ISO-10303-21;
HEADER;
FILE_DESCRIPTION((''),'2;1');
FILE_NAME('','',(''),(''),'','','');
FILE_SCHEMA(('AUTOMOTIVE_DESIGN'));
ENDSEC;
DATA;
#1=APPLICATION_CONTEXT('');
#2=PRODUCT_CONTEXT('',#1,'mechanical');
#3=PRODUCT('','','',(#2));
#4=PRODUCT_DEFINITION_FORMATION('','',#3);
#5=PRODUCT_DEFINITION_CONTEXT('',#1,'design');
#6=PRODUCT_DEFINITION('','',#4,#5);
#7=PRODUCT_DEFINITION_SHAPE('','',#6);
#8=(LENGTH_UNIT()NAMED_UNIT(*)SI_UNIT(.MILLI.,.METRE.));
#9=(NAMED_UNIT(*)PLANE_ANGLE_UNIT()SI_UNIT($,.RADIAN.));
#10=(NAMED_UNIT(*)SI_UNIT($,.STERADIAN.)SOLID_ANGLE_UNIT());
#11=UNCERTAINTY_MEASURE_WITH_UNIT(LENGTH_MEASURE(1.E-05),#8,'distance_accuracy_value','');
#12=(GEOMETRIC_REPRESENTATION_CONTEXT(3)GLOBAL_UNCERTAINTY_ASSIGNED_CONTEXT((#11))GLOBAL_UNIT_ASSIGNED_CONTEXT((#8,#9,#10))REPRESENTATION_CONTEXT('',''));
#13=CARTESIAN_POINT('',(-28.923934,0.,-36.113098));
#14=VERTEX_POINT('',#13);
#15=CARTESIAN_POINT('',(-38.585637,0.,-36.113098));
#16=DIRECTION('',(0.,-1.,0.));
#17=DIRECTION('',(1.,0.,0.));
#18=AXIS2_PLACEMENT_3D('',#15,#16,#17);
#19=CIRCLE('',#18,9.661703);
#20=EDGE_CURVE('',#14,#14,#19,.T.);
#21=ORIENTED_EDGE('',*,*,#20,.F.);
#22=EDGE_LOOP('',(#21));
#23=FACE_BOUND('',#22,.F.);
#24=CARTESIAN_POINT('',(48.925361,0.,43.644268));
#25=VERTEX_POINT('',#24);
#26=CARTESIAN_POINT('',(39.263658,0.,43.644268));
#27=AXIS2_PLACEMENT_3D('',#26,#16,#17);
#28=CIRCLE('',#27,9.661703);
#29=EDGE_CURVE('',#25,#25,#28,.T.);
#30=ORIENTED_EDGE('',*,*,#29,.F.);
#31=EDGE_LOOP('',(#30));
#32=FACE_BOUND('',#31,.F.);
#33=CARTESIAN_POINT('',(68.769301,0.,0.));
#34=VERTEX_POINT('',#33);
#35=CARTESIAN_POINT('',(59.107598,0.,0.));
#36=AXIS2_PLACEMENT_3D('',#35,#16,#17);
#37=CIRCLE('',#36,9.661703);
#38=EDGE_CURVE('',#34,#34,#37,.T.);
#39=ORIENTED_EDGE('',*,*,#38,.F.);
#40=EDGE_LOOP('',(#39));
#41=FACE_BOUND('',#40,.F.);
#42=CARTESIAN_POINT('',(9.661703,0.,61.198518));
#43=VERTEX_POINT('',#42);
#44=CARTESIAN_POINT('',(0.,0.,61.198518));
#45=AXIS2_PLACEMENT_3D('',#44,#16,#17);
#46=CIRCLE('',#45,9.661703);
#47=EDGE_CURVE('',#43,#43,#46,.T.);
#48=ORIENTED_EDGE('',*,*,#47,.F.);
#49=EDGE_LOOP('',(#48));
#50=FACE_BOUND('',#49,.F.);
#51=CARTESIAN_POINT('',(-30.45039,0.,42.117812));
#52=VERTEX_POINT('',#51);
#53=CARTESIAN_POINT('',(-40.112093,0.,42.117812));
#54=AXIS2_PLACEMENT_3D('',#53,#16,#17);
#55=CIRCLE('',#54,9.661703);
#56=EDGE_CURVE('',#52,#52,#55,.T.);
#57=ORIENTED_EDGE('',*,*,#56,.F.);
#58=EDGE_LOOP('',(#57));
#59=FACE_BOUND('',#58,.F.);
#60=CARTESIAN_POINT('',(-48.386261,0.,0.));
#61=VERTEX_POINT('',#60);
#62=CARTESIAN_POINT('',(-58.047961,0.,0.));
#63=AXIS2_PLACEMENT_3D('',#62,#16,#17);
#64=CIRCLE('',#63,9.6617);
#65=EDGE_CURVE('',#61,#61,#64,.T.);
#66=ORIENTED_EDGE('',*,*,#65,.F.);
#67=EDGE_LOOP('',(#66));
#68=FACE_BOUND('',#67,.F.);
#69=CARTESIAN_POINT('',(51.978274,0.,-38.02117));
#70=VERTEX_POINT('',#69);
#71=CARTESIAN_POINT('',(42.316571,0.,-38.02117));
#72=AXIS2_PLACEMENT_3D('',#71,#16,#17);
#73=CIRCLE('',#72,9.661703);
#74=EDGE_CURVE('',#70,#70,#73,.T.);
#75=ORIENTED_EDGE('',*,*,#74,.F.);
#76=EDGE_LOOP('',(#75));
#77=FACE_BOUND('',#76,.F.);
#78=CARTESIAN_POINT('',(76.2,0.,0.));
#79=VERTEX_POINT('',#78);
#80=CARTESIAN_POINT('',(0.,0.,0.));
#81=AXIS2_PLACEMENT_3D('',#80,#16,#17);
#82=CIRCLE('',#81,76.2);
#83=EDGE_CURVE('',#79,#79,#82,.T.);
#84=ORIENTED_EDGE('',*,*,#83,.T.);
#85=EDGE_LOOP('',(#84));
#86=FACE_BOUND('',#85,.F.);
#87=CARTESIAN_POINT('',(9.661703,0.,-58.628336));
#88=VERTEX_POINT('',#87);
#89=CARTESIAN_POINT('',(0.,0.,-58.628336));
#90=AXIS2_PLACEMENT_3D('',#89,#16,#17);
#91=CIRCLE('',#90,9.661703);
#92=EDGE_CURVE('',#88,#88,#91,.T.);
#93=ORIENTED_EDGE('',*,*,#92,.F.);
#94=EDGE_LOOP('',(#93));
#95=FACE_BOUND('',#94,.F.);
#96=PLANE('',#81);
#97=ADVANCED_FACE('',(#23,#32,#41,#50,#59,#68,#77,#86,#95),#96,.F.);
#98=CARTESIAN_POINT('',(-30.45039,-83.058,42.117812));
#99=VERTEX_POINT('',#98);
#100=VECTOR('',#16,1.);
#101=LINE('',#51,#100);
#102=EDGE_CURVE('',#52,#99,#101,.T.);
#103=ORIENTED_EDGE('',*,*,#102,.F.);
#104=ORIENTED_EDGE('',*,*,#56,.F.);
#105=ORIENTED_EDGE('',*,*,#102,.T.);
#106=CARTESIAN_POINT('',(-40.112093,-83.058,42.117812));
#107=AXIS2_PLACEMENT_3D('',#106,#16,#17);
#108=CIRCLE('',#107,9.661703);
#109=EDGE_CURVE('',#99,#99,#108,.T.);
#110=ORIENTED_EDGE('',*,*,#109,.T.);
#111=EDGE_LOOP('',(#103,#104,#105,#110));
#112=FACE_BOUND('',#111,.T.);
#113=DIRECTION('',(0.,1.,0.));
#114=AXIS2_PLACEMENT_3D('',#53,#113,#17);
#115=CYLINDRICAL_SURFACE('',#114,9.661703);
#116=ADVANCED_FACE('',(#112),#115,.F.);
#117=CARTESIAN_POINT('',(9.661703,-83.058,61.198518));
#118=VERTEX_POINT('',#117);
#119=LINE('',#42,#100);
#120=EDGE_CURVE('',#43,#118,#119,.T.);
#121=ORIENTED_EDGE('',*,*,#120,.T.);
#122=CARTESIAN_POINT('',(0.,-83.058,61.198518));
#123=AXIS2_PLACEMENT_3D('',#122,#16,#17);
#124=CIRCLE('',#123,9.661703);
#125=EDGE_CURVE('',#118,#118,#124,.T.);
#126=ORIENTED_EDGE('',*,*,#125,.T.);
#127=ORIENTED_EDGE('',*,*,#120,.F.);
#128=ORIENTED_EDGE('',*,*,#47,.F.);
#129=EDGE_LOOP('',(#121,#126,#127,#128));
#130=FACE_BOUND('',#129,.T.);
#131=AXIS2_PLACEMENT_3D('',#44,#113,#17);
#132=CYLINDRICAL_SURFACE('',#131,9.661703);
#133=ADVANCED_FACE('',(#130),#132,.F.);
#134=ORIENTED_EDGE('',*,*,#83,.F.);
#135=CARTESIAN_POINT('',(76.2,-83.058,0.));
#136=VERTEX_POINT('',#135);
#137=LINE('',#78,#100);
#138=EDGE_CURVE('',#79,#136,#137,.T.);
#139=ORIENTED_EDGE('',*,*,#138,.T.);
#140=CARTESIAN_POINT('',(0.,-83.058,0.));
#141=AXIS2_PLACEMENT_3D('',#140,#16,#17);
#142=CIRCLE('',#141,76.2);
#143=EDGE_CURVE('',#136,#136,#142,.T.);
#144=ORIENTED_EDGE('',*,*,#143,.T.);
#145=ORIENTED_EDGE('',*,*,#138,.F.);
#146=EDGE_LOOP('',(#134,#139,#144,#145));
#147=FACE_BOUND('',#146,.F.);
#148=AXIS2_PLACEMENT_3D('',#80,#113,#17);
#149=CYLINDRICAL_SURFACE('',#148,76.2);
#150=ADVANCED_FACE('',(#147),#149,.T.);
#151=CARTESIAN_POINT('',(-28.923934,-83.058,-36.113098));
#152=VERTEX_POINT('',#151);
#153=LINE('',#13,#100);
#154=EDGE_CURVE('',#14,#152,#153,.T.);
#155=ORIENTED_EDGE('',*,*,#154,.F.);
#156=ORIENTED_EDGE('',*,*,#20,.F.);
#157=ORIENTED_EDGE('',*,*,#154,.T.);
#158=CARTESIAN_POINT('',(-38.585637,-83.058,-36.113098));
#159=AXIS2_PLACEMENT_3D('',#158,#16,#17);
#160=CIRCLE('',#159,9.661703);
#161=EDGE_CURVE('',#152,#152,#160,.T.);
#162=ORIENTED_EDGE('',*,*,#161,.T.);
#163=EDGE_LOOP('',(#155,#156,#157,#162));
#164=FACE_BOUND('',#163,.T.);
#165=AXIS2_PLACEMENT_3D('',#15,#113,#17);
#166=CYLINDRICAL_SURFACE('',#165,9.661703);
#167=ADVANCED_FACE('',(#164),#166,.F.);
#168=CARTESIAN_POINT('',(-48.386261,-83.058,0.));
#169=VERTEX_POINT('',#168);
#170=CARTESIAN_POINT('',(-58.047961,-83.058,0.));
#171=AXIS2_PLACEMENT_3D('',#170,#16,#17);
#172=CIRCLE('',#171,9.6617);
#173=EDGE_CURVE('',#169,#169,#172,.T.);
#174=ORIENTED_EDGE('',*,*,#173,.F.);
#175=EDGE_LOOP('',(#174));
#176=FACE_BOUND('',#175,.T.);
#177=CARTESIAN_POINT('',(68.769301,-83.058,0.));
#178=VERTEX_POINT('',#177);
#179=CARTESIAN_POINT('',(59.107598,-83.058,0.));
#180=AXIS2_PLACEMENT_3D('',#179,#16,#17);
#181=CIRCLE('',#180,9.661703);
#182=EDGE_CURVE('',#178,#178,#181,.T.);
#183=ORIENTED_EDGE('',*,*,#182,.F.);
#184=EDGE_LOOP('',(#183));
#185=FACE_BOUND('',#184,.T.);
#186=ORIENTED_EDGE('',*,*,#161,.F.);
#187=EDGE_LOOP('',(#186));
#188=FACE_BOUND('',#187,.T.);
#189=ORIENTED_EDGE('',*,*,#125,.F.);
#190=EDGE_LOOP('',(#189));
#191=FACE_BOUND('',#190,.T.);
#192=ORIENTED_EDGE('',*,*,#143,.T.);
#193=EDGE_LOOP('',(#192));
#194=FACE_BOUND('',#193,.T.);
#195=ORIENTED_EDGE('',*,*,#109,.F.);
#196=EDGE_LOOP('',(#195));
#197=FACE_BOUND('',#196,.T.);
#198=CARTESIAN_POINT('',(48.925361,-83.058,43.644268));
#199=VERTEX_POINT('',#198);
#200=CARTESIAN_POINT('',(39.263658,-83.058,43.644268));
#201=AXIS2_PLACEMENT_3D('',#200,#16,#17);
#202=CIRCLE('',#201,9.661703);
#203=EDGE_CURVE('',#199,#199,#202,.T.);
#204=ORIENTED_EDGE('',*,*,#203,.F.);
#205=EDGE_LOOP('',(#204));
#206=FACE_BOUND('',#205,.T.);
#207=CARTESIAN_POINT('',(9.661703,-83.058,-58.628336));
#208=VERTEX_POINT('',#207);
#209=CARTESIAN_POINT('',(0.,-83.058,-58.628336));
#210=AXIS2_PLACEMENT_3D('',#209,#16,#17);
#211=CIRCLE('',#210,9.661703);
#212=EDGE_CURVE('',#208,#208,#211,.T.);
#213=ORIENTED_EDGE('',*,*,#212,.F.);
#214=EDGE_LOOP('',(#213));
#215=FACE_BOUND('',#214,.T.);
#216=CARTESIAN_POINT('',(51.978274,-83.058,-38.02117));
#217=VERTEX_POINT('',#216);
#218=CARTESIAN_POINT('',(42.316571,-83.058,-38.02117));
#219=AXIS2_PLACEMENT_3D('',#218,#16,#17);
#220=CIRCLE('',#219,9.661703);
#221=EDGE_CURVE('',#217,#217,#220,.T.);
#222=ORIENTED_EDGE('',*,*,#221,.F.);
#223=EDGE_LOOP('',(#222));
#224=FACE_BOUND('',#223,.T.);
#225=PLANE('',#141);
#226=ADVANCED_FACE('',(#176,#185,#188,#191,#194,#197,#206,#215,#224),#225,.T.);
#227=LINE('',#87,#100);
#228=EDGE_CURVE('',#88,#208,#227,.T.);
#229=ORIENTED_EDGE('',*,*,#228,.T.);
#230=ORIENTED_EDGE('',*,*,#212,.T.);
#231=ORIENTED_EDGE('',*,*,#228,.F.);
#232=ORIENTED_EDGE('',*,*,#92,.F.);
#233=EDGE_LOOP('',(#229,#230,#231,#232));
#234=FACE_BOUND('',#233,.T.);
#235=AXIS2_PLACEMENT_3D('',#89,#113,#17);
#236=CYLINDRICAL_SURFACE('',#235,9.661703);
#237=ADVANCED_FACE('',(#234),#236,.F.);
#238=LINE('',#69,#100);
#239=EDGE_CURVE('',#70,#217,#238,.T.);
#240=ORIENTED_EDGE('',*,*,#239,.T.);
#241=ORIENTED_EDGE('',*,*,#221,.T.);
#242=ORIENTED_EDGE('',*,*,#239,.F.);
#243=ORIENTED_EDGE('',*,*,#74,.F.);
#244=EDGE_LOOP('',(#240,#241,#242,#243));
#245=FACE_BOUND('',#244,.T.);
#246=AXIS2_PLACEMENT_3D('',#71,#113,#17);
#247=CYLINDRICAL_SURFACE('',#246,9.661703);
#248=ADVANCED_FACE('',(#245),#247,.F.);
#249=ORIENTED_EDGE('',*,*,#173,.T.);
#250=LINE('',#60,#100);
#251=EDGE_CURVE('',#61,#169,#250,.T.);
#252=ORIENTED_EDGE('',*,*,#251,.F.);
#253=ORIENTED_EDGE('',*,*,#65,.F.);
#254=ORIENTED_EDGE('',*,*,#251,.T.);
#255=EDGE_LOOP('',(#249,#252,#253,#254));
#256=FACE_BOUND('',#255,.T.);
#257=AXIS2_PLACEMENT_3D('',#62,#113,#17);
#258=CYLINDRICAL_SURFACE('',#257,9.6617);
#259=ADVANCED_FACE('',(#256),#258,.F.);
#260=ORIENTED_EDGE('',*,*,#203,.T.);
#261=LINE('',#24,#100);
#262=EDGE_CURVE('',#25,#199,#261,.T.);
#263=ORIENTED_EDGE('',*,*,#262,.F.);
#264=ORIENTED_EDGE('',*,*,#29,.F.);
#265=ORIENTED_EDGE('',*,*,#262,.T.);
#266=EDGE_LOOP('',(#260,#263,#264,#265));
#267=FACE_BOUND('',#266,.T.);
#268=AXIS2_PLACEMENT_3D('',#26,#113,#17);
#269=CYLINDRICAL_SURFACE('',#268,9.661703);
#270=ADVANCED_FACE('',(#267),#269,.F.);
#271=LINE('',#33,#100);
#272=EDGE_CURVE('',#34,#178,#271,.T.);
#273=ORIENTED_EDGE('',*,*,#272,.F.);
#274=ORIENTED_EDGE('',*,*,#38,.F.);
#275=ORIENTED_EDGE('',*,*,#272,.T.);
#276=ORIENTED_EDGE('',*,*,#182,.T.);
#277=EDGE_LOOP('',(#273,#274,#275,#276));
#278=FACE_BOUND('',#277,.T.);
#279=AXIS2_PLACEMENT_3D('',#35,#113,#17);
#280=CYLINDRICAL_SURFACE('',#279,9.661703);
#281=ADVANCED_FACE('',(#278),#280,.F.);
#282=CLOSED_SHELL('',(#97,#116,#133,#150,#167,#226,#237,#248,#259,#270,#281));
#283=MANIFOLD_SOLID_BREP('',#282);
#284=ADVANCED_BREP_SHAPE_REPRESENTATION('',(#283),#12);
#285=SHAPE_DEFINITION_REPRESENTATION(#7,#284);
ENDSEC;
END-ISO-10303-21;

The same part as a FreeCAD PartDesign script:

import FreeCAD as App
import Part
import Sketcher
Q = App.Units.Quantity

doc = App.newDocument("Part")
body = doc.addObject("PartDesign::Body", "Body")

# Sketch on XZ plane
sketch1 = doc.addObject("Sketcher::SketchObject", "Sketch")
body.addObject(sketch1)
sketch1.AttachmentSupport = (doc.XZ_Plane, [""])
sketch1.MapMode = "FlatFace"
sketch1.addGeometry([
    Part.Circle(App.Vector(0, 0, 0), App.Vector(0, 0, 1), 76),  # 0
    Part.Circle(App.Vector(-39, -36, 0), App.Vector(0, 0, 1), 10),  # 1
    Part.Circle(App.Vector(0, -59, 0), App.Vector(0, 0, 1), 10),  # 2
    Part.Circle(App.Vector(-58, 0, 0), App.Vector(0, 0, 1), 10),  # 3
    Part.Circle(App.Vector(42, -38, 0), App.Vector(0, 0, 1), 10),  # 4
    Part.Circle(App.Vector(59, 0, 0), App.Vector(0, 0, 1), 10),  # 5
    Part.Circle(App.Vector(-40, 42, 0), App.Vector(0, 0, 1), 10),  # 6
    Part.Circle(App.Vector(0, 61, 0), App.Vector(0, 0, 1), 10),  # 7
    Part.Circle(App.Vector(39, 44, 0), App.Vector(0, 0, 1), 10),  # 8
], False)
sketch1.addConstraint([
    Sketcher.Constraint("Coincident", 0, 3, -1, 1),
    Sketcher.Constraint("Equal", 1, 2),
    Sketcher.Constraint("Equal", 2, 4),
    Sketcher.Constraint("Equal", 4, 5),
    Sketcher.Constraint("Equal", 5, 6),
    Sketcher.Constraint("Equal", 6, 7),
    Sketcher.Constraint("Equal", 7, 8),
    Sketcher.Constraint("PointOnObject", 2, 3, -2),
    Sketcher.Constraint("PointOnObject", 3, 3, -1),
    Sketcher.Constraint("PointOnObject", 5, 3, -1),
    Sketcher.Constraint("PointOnObject", 7, 3, -2),
    Sketcher.Constraint("Diameter", 0, Q("6 in")),
    Sketcher.Constraint("Diameter", 3, 19.3234),
    Sketcher.Constraint("Diameter", 1, 19.323406),
    Sketcher.Constraint("DistanceX", -1, 1, 5, 3, 59.107598),
    Sketcher.Constraint("DistanceX", 3, 3, -1, 1, 58.047961),
    Sketcher.Constraint("DistanceX", -1, 1, 4, 3, 42.316571),
    Sketcher.Constraint("DistanceY", 4, 3, -1, 1, 38.02117),
    Sketcher.Constraint("DistanceX", 1, 3, 4, 3, 80.902208),
    Sketcher.Constraint("DistanceY", 4, 3, 1, 3, 1.908072),
    Sketcher.Constraint("DistanceY", 1, 3, 6, 3, 78.23091),
    Sketcher.Constraint("DistanceX", 6, 3, 5, 3, 99.219691),
    Sketcher.Constraint("DistanceY", 2, 3, 6, 3, 100.746148),
    Sketcher.Constraint("DistanceY", 8, 3, 7, 3, 17.55425),
    Sketcher.Constraint("DistanceX", 8, 3, 5, 3, 19.84394),
    Sketcher.Constraint("DistanceY", -1, 1, 7, 3, 61.198518),
])
pad1 = doc.addObject("PartDesign::Pad", "Pad")
body.addObject(pad1)
pad1.Profile = sketch1
pad1.Length = Q("3.27 in")

doc.recompute()
